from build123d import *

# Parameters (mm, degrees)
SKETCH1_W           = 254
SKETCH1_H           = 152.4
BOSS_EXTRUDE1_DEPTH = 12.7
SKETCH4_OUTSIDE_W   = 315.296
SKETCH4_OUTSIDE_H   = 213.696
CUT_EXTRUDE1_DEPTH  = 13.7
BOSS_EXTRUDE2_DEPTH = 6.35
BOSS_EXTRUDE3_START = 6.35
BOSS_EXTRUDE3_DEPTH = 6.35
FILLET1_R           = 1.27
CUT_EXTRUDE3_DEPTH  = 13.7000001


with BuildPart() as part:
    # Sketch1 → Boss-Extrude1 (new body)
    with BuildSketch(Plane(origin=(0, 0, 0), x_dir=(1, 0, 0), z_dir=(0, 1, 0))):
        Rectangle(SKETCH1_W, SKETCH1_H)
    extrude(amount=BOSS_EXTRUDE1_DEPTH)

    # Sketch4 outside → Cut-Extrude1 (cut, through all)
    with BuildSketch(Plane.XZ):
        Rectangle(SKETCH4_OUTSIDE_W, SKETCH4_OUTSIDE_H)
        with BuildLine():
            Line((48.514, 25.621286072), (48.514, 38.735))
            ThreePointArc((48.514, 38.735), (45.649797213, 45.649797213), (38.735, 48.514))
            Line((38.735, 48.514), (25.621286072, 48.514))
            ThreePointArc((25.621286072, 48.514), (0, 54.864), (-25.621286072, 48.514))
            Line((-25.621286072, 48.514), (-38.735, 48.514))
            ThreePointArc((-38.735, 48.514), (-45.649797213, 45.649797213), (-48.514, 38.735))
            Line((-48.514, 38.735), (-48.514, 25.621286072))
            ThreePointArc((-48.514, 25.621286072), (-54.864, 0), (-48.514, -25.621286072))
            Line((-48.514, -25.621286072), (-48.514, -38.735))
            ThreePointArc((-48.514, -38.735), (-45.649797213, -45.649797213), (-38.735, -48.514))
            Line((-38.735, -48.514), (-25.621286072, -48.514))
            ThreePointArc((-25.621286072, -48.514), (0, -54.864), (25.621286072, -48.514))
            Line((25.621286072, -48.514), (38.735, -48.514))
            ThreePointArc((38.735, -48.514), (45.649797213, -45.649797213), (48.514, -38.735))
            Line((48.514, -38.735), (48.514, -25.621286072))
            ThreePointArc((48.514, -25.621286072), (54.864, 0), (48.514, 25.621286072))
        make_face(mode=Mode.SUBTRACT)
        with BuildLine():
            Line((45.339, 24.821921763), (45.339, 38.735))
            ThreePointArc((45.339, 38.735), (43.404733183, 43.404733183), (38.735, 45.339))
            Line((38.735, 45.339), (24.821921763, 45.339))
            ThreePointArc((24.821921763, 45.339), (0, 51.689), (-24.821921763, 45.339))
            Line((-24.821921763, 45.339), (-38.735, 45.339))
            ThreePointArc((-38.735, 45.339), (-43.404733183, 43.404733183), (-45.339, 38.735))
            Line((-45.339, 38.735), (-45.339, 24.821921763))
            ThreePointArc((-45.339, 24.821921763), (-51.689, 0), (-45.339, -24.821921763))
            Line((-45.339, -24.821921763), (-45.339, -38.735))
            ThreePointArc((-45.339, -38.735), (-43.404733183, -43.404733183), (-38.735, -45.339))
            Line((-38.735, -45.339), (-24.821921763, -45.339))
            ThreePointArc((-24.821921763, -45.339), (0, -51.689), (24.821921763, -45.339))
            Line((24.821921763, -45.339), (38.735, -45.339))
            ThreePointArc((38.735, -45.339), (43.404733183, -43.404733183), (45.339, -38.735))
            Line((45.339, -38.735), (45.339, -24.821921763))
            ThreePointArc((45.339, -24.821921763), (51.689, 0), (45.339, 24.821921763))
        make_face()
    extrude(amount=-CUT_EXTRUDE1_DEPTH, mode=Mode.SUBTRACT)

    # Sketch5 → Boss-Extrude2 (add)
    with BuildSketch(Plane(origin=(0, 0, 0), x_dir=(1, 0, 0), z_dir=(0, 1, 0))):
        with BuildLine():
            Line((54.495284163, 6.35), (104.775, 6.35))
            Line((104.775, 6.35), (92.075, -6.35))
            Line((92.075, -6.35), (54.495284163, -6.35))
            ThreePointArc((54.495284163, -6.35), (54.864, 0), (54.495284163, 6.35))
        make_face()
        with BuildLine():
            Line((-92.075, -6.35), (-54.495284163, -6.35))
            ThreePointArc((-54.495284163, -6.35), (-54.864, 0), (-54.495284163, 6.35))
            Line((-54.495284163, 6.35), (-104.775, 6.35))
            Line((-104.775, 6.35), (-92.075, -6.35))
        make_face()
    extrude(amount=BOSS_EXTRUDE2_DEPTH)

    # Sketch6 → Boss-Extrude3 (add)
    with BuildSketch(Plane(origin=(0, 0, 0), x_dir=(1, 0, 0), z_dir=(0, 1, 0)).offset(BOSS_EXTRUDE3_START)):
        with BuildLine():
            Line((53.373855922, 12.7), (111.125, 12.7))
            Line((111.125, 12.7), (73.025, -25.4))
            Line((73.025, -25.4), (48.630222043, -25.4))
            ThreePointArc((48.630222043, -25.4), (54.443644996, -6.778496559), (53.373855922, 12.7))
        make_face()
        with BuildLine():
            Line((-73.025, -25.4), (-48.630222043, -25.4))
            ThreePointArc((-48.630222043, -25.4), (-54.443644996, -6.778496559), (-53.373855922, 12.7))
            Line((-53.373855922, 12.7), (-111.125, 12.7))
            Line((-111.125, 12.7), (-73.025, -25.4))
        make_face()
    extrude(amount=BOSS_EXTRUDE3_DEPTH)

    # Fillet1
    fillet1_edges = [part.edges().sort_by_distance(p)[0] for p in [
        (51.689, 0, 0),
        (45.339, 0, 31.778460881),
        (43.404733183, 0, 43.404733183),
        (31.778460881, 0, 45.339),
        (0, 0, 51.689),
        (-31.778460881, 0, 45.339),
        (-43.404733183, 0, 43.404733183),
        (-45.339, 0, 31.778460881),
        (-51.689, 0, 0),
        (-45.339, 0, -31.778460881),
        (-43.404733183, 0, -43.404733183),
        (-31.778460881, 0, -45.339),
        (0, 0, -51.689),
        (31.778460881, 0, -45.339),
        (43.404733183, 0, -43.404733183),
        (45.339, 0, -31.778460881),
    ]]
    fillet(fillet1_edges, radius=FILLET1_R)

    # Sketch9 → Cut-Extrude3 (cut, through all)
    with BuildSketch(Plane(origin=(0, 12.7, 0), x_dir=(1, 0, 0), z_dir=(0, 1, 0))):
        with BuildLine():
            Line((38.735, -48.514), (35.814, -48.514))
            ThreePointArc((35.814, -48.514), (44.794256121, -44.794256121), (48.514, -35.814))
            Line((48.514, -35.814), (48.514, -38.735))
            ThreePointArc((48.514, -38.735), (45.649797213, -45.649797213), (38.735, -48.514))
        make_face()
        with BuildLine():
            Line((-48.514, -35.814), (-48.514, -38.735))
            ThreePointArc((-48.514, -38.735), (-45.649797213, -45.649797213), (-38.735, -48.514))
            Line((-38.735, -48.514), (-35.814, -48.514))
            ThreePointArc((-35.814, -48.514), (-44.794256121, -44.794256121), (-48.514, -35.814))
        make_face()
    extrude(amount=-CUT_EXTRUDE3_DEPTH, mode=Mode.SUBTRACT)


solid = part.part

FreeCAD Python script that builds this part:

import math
import FreeCAD as App
import Part
import Sketcher
from FreeCAD import Vector
Q = App.Units.Quantity


def edges_at(feature, points):
    """Names of the edges that pass closest to the given points."""
    edges = feature.Shape.Edges
    near = lambda p: min(range(len(edges)), key=lambda i: edges[i].distToShape(Part.Vertex(*p))[0])
    return sorted({f"Edge{near(p) + 1}" for p in points})

doc = App.newDocument("Part")
params = doc.addObject("Spreadsheet::Sheet", "Params")
for row, (alias, value) in enumerate([
    ("sketch1_width", "10 in"),
    ("sketch1_height", "6 in"),
    ("pad1_length", "0.5 in"),
    ("sketch2_radius", "2.16 in"),
    ("sketch2_radius2", "0.26 in"),
    ("sketch2_radius3", "0.385 in"),
    ("sketch2_radius4", "2.035 in"),
    ("sketch3_radius", "2.16 in"),
    ("pad2_length", "0.25 in"),
    ("sketch4_radius", "2.16 in"),
    ("pad3_length", "0.25 in"),
    ("fillet_radius", "0.05 in"),
    ("sketch5_radius", "0.5 in"),
    ("sketch5_radius2", "0.385 in"),
], start=1):
    params.set(f"A{row}", alias)
    params.set(f"B{row}", "=" + value)
    params.setAlias(f"B{row}", alias)

body = doc.addObject("PartDesign::Body", "Body")

# Sketch on XZ plane
sketch1 = body.newObject("Sketcher::SketchObject", "Sketch")
sketch1.AttachmentSupport = (doc.getObject("XZ_Plane"), [""])
sketch1.MapMode = "FlatFace"
sketch1.addGeometry([
    Part.LineSegment(Vector(-127, -76, 0), Vector(-127, 76, 0)),
    Part.LineSegment(Vector(-127, 76, 0), Vector(127, 76, 0)),
    Part.LineSegment(Vector(127, 76, 0), Vector(127, -76, 0)),
    Part.LineSegment(Vector(127, -76, 0), Vector(-127, -76, 0)),
], False)
sketch1.addConstraint([
    Sketcher.Constraint("Coincident", 0, 2, 1, 1),
    Sketcher.Constraint("Coincident", 1, 2, 2, 1),
    Sketcher.Constraint("Coincident", 2, 2, 3, 1),
    Sketcher.Constraint("Coincident", 3, 2, 0, 1),
    Sketcher.Constraint("Vertical", 0),
    Sketcher.Constraint("Horizontal", 1),
    Sketcher.Constraint("Vertical", 2),
    Sketcher.Constraint("Horizontal", 3),
    Sketcher.Constraint("Symmetric", 0, 2, 2, 2, -1, 1),
    Sketcher.Constraint("DistanceX", 1, 1, 1, 2, Q("10 in")),
    Sketcher.Constraint("DistanceY", 0, 1, 0, 2, Q("6 in")),
])
sketch1.setExpression("Constraints[9]", "Params.sketch1_width")
sketch1.setExpression("Constraints[10]", "Params.sketch1_height")
pad1 = body.newObject("PartDesign::Pad", "Pad")
pad1.Profile = sketch1
pad1.setExpression("Length", "Params.pad1_length")
pad1.Reversed = True

# Sketch on XZ plane
sketch2 = body.newObject("Sketcher::SketchObject", "Sketch001")
sketch2.AttachmentSupport = (doc.getObject("XZ_Plane"), [""])
sketch2.MapMode = "FlatFace"
sketch2.addGeometry([
    Part.LineSegment(Vector(-158, 107, 0), Vector(-158, -107, 0)),  # 0
    Part.LineSegment(Vector(-158, -107, 0), Vector(158, -107, 0)),  # 1
    Part.LineSegment(Vector(158, -107, 0), Vector(158, 107, 0)),  # 2
    Part.LineSegment(Vector(158, 107, 0), Vector(-158, 107, 0)),  # 3
    Part.LineSegment(Vector(49, 39, 0), Vector(49, 26, 0)),  # 4
    Part.ArcOfCircle(Part.Circle(Vector(0, 0, 0), Vector(0, 0, 1), 55), math.radians(-28), math.radians(28)),  # 5
    Part.LineSegment(Vector(49, -26, 0), Vector(49, -39, 0)),  # 6
    Part.ArcOfCircle(Part.Circle(Vector(39, -39, 0), Vector(0, 0, 1), 10), math.radians(-90), math.radians(0)),  # 7
    Part.LineSegment(Vector(39, -49, 0), Vector(26, -49, 0)),  # 8
    Part.ArcOfCircle(Part.Circle(Vector(0, 0, 0), Vector(0, 0, 1), 55), math.radians(-118), math.radians(-62)),  # 9
    Part.LineSegment(Vector(-26, -49, 0), Vector(-39, -49, 0)),  # 10
    Part.ArcOfCircle(Part.Circle(Vector(-39, -39, 0), Vector(0, 0, 1), 10), math.radians(-180), math.radians(-90)),  # 11
    Part.LineSegment(Vector(-49, -39, 0), Vector(-49, -26, 0)),  # 12
    Part.ArcOfCircle(Part.Circle(Vector(0, 0, 0), Vector(0, 0, 1), 55), math.radians(152), math.radians(208)),  # 13
    Part.LineSegment(Vector(-49, 26, 0), Vector(-49, 39, 0)),  # 14
    Part.ArcOfCircle(Part.Circle(Vector(-39, 39, 0), Vector(0, 0, 1), 10), math.radians(90), math.radians(180)),  # 15
    Part.LineSegment(Vector(-39, 49, 0), Vector(-26, 49, 0)),  # 16
    Part.ArcOfCircle(Part.Circle(Vector(0, 0, 0), Vector(0, 0, 1), 55), math.radians(62), math.radians(118)),  # 17
    Part.LineSegment(Vector(26, 49, 0), Vector(39, 49, 0)),  # 18
    Part.ArcOfCircle(Part.Circle(Vector(39, 39, 0), Vector(0, 0, 1), 10), math.radians(0), math.radians(90)),  # 19
    Part.LineSegment(Vector(45, 25, 0), Vector(45, 39, 0)),  # 20
    Part.ArcOfCircle(Part.Circle(Vector(39, 39, 0), Vector(0, 0, 1), 7), math.radians(0), math.radians(90)),  # 21
    Part.LineSegment(Vector(39, 45, 0), Vector(25, 45, 0)),  # 22
    Part.ArcOfCircle(Part.Circle(Vector(0, 0, 0), Vector(0, 0, 1), 52), math.radians(61), math.radians(119)),  # 23
    Part.LineSegment(Vector(-25, 45, 0), Vector(-39, 45, 0)),  # 24
    Part.ArcOfCircle(Part.Circle(Vector(-39, 39, 0), Vector(0, 0, 1), 7), math.radians(90), math.radians(180)),  # 25
    Part.LineSegment(Vector(-45, 39, 0), Vector(-45, 25, 0)),  # 26
    Part.ArcOfCircle(Part.Circle(Vector(0, 0, 0), Vector(0, 0, 1), 52), math.radians(151), math.radians(209)),  # 27
    Part.LineSegment(Vector(-45, -25, 0), Vector(-45, -39, 0)),  # 28
    Part.ArcOfCircle(Part.Circle(Vector(-39, -39, 0), Vector(0, 0, 1), 7), math.radians(180), math.radians(270)),  # 29
    Part.LineSegment(Vector(-39, -45, 0), Vector(-25, -45, 0)),  # 30
    Part.ArcOfCircle(Part.Circle(Vector(0, 0, 0), Vector(0, 0, 1), 52), math.radians(-119), math.radians(-61)),  # 31
    Part.LineSegment(Vector(25, -45, 0), Vector(39, -45, 0)),  # 32
    Part.ArcOfCircle(Part.Circle(Vector(39, -39, 0), Vector(0, 0, 1), 7), math.radians(-90), math.radians(0)),  # 33
    Part.LineSegment(Vector(45, -39, 0), Vector(45, -25, 0)),  # 34
    Part.ArcOfCircle(Part.Circle(Vector(0, 0, 0), Vector(0, 0, 1), 52), math.radians(-29), math.radians(29)),  # 35
], False)
sketch2.addConstraint([
    Sketcher.Constraint("Coincident", 0, 2, 1, 1),
    Sketcher.Constraint("Coincident", 1, 2, 2, 1),
    Sketcher.Constraint("Coincident", 2, 2, 3, 1),
    Sketcher.Constraint("Coincident", 3, 2, 0, 1),
    Sketcher.Constraint("Coincident", 4, 2, 5, 2),
    Sketcher.Constraint("Coincident", 5, 1, 6, 1),
    Sketcher.Constraint("Tangent", 6, 2, 7, 2),
    Sketcher.Constraint("Tangent", 7, 1, 8, 1),
    Sketcher.Constraint("Coincident", 8, 2, 9, 2),
    Sketcher.Constraint("Coincident", 9, 1, 10, 1),
    Sketcher.Constraint("Tangent", 10, 2, 11, 2),
    Sketcher.Constraint("Tangent", 11, 1, 12, 1),
    Sketcher.Constraint("Coincident", 12, 2, 13, 2),
    Sketcher.Constraint("Coincident", 13, 1, 14, 1),
    Sketcher.Constraint("Tangent", 14, 2, 15, 2),
    Sketcher.Constraint("Tangent", 15, 1, 16, 1),
    Sketcher.Constraint("Coincident", 16, 2, 17, 2),
    Sketcher.Constraint("Coincident", 17, 1, 18, 1),
    Sketcher.Constraint("Tangent", 18, 2, 19, 2),
    Sketcher.Constraint("Tangent", 19, 1, 4, 1),
    Sketcher.Constraint("Tangent", 20, 2, 21, 1),
    Sketcher.Constraint("Tangent", 21, 2, 22, 1),
    Sketcher.Constraint("Coincident", 22, 2, 23, 1),
    Sketcher.Constraint("Coincident", 23, 2, 24, 1),
    Sketcher.Constraint("Tangent", 24, 2, 25, 1),
    Sketcher.Constraint("Tangent", 25, 2, 26, 1),
    Sketcher.Constraint("Coincident", 26, 2, 27, 1),
    Sketcher.Constraint("Coincident", 27, 2, 28, 1),
    Sketcher.Constraint("Tangent", 28, 2, 29, 1),
    Sketcher.Constraint("Tangent", 29, 2, 30, 1),
    Sketcher.Constraint("Coincident", 30, 2, 31, 1),
    Sketcher.Constraint("Coincident", 31, 2, 32, 1),
    Sketcher.Constraint("Tangent", 32, 2, 33, 1),
    Sketcher.Constraint("Tangent", 33, 2, 34, 1),
    Sketcher.Constraint("Coincident", 34, 2, 35, 1),
    Sketcher.Constraint("Coincident", 35, 2, 20, 1),
    Sketcher.Constraint("Vertical", 0),
    Sketcher.Constraint("Horizontal", 1),
    Sketcher.Constraint("Vertical", 2),
    Sketcher.Constraint("Horizontal", 3),
    Sketcher.Constraint("Vertical", 4),
    Sketcher.Constraint("Vertical", 6),
    Sketcher.Constraint("Horizontal", 8),
    Sketcher.Constraint("Horizontal", 10),
    Sketcher.Constraint("Vertical", 12),
    Sketcher.Constraint("Vertical", 14),
    Sketcher.Constraint("Horizontal", 16),
    Sketcher.Constraint("Horizontal", 18),
    Sketcher.Constraint("Vertical", 20),
    Sketcher.Constraint("Horizontal", 22),
    Sketcher.Constraint("Horizontal", 24),
    Sketcher.Constraint("Vertical", 26),
    Sketcher.Constraint("Vertical", 28),
    Sketcher.Constraint("Horizontal", 30),
    Sketcher.Constraint("Horizontal", 32),
    Sketcher.Constraint("Vertical", 34),
    Sketcher.Constraint("Coincident", 5, 3, -1, 1),
    Sketcher.Constraint("Coincident", 9, 3, -1, 1),
    Sketcher.Constraint("Coincident", 13, 3, -1, 1),
    Sketcher.Constraint("Coincident", 17, 3, -1, 1),
    Sketcher.Constraint("Coincident", 23, 3, -1, 1),
    Sketcher.Constraint("Coincident", 27, 3, -1, 1),
    Sketcher.Constraint("Coincident", 31, 3, -1, 1),
    Sketcher.Constraint("Coincident", 35, 3, -1, 1),
    Sketcher.Constraint("Coincident", 21, 3, 19, 3),
    Sketcher.Constraint("Coincident", 25, 3, 15, 3),
    Sketcher.Constraint("Coincident", 29, 3, 11, 3),
    Sketcher.Constraint("Coincident", 33, 3, 7, 3),
    Sketcher.Constraint("Equal", 5, 9),
    Sketcher.Constraint("Equal", 7, 11),
    Sketcher.Constraint("Equal", 9, 13),
    Sketcher.Constraint("Equal", 11, 15),
    Sketcher.Constraint("Equal", 13, 17),
    Sketcher.Constraint("Equal", 15, 19),
    Sketcher.Constraint("Equal", 21, 25),
    Sketcher.Constraint("Equal", 23, 27),
    Sketcher.Constraint("Equal", 25, 29),
    Sketcher.Constraint("Equal", 27, 31),
    Sketcher.Constraint("Equal", 29, 33),
    Sketcher.Constraint("Equal", 31, 35),
    Sketcher.Constraint("Symmetric", 7, 3, 15, 3, -1, 1),
    Sketcher.Constraint("Symmetric", 11, 3, 19, 3, -1, 1),
    Sketcher.Constraint("Symmetric", 0, 2, 2, 2, -1, 1),
    Sketcher.Constraint("Symmetric", 7, 3, 11, 3, -2),
    Sketcher.Constraint("Equal", 18, 4),
    Sketcher.Constraint("Radius", 5, Q("2.16 in")),
    Sketcher.Constraint("Radius", 21, Q("0.26 in")),
    Sketcher.Constraint("Radius", 7, Q("0.385 in")),
    Sketcher.Constraint("Radius", 23, Q("2.035 in")),
    Sketcher.Constraint("DistanceX", -1, 1, 4, 2, Q("1.91 in")),
    Sketcher.Constraint("DistanceX", 1, 1, 1, 2, Q("315.296 mm")),
    Sketcher.Constraint("DistanceY", 0, 2, 0, 1, Q("213.696 mm")),
])
sketch2.setExpression("Constraints[85]", "Params.sketch2_radius")
sketch2.setExpression("Constraints[86]", "Params.sketch2_radius2")
sketch2.setExpression("Constraints[87]", "Params.sketch2_radius3")
sketch2.setExpression("Constraints[88]", "Params.sketch2_radius4")
pocket1 = body.newObject("PartDesign::Pocket", "Pocket")
pocket1.Profile = sketch2
pocket1.Type = "ThroughAll"

# Sketch on XZ plane
sketch3 = body.newObject("Sketcher::SketchObject", "Sketch002")
sketch3.AttachmentSupport = (doc.getObject("XZ_Plane"), [""])
sketch3.MapMode = "FlatFace"
sketch3.addGeometry([
    Part.LineSegment(Vector(105, -6, 0), Vector(54, -6, 0)),  # 0
    Part.ArcOfCircle(Part.Circle(Vector(0, 0, 0), Vector(0, 0, 1), 55), math.radians(-6.65), math.radians(6.65)),  # 1
    Part.LineSegment(Vector(54, 6, 0), Vector(92, 6, 0)),  # 2
    Part.LineSegment(Vector(92, 6, 0), Vector(105, -6, 0)),  # 3
    Part.LineSegment(Vector(-92, 6, 0), Vector(-54, 6, 0)),  # 4
    Part.ArcOfCircle(Part.Circle(Vector(0, 0, 0), Vector(0, 0, 1), 55), math.radians(173.35), math.radians(186.65)),  # 5
    Part.LineSegment(Vector(-54, -6, 0), Vector(-105, -6, 0)),  # 6
    Part.LineSegment(Vector(-105, -6, 0), Vector(-92, 6, 0)),  # 7
], False)
sketch3.addConstraint([
    Sketcher.Constraint("Coincident", 0, 2, 1, 1),
    Sketcher.Constraint("Coincident", 1, 2, 2, 1),
    Sketcher.Constraint("Coincident", 2, 2, 3, 1),
    Sketcher.Constraint("Coincident", 3, 2, 0, 1),
    Sketcher.Constraint("Coincident", 4, 2, 5, 1),
    Sketcher.Constraint("Coincident", 5, 2, 6, 1),
    Sketcher.Constraint("Coincident", 6, 2, 7, 1),
    Sketcher.Constraint("Coincident", 7, 2, 4, 1),
    Sketcher.Constraint("Horizontal", 0),
    Sketcher.Constraint("Horizontal", 2),
    Sketcher.Constraint("Horizontal", 4),
    Sketcher.Constraint("Horizontal", 6),
    Sketcher.Constraint("Coincident", 1, 3, -1, 1),
    Sketcher.Constraint("Coincident", 5, 3, -1, 1),
    Sketcher.Constraint("Equal", 1, 5),
    Sketcher.Constraint("Symmetric", 3, 2, 6, 2, -2),
    Sketcher.Constraint("Symmetric", 2, 2, 7, 2, -2),
    Sketcher.Constraint("Perpendicular", 3, 7),
    Sketcher.Constraint("Vertical", 0, 2, 1, 2),
    Sketcher.Constraint("Radius", 1, Q("2.16 in")),
    Sketcher.Constraint("DistanceY", 0, 2, 1, 2, Q("0.5 in")),
    Sketcher.Constraint("DistanceX", -1, 1, 2, 2, Q("3.625 in")),
])
sketch3.setExpression("Constraints[19]", "Params.sketch3_radius")
pad2 = body.newObject("PartDesign::Pad", "Pad001")
pad2.Profile = sketch3
pad2.setExpression("Length", "Params.pad2_length")
pad2.Reversed = True

# Sketch on XZ plane
sketch4 = body.newObject("Sketcher::SketchObject", "Sketch003")
sketch4.AttachmentSupport = (doc.getObject("XZ_Plane"), [""])
sketch4.MapMode = "FlatFace"
sketch4.AttachmentOffset = App.Placement(Vector(0, 0, -0.25 * 25.4), App.Rotation())
sketch4.addGeometry([
    Part.LineSegment(Vector(111, -13, 0), Vector(53, -13, 0)),  # 0
    Part.ArcOfCircle(Part.Circle(Vector(0, 0, 0), Vector(0, 0, 1), 55), math.radians(-13), math.radians(28)),  # 1
    Part.LineSegment(Vector(49, 25, 0), Vector(73, 25, 0)),  # 2
    Part.LineSegment(Vector(73, 25, 0), Vector(111, -13, 0)),  # 3
    Part.LineSegment(Vector(-73, 25, 0), Vector(-49, 25, 0)),  # 4
    Part.ArcOfCircle(Part.Circle(Vector(0, 0, 0), Vector(0, 0, 1), 55), math.radians(152), math.radians(193)),  # 5
    Part.LineSegment(Vector(-53, -13, 0), Vector(-111, -13, 0)),  # 6
    Part.LineSegment(Vector(-111, -13, 0), Vector(-73, 25, 0)),  # 7
], False)
sketch4.addConstraint([
    Sketcher.Constraint("Coincident", 0, 2, 1, 1),
    Sketcher.Constraint("Coincident", 1, 2, 2, 1),
    Sketcher.Constraint("Coincident", 2, 2, 3, 1),
    Sketcher.Constraint("Coincident", 3, 2, 0, 1),
    Sketcher.Constraint("Coincident", 4, 2, 5, 1),
    Sketcher.Constraint("Coincident", 5, 2, 6, 1),
    Sketcher.Constraint("Coincident", 6, 2, 7, 1),
    Sketcher.Constraint("Coincident", 7, 2, 4, 1),
    Sketcher.Constraint("Horizontal", 0),
    Sketcher.Constraint("Horizontal", 2),
    Sketcher.Constraint("Horizontal", 4),
    Sketcher.Constraint("Horizontal", 6),
    Sketcher.Constraint("Coincident", 1, 3, -1, 1),
    Sketcher.Constraint("Coincident", 5, 3, -1, 1),
    Sketcher.Constraint("Equal", 1, 5),
    Sketcher.Constraint("Symmetric", 3, 2, 6, 2, -2),
    Sketcher.Constraint("Symmetric", 2, 2, 7, 2, -2),
    Sketcher.Constraint("Perpendicular", 3, 7),
    Sketcher.Constraint("Radius", 1, Q("2.16 in")),
    Sketcher.Constraint("DistanceY", -1, 1, 1, 2, Q("1 in")),
    Sketcher.Constraint("DistanceY", 0, 2, -1, 1, Q("0.5 in")),
    Sketcher.Constraint("DistanceX", -1, 1, 2, 2, Q("2.875 in")),
])
sketch4.setExpression("Constraints[18]", "Params.sketch4_radius")
pad3 = body.newObject("PartDesign::Pad", "Pad002")
pad3.Profile = sketch4
pad3.setExpression("Length", "Params.pad3_length")
pad3.Reversed = True
doc.recompute()

fillet = body.newObject("PartDesign::Fillet", "Fillet")
fillet.Base = (pad3, edges_at(pad3, [
    (51.689, 0, 0),
    (45.339, 0, 31.778),
    (43.405, 0, 43.405),
    (31.778, 0, 45.339),
    (0, 0, 51.689),
    (-31.778, 0, 45.339),
    (-43.405, 0, 43.405),
    (-45.339, 0, 31.778),
    (-51.689, 0, 0),
    (-45.339, 0, -31.778),
    (-43.405, 0, -43.405),
    (-31.778, 0, -45.339),
    (0, 0, -51.689),
    (31.778, 0, -45.339),
    (43.405, 0, -43.405),
    (45.339, 0, -31.778),
]))
fillet.setExpression("Radius", "Params.fillet_radius")

# Sketch on XZ plane
sketch5 = body.newObject("Sketcher::SketchObject", "Sketch004")
sketch5.AttachmentSupport = (doc.getObject("XZ_Plane"), [""])
sketch5.MapMode = "FlatFace"
sketch5.AttachmentOffset = App.Placement(Vector(0, 0, -0.5 * 25.4), App.Rotation())
sketch5.addGeometry([
    Part.LineSegment(Vector(35.8, 48.5, 0), Vector(38.7, 48.5, 0)),  # 0
    Part.ArcOfCircle(Part.Circle(Vector(38.7, 38.7, 0), Vector(0, 0, 1), 9.8), math.radians(0), math.radians(90)),  # 1
    Part.LineSegment(Vector(48.5, 38.7, 0), Vector(48.5, 35.8, 0)),  # 2
    Part.ArcOfCircle(Part.Circle(Vector(35.8, 35.8, 0), Vector(0, 0, 1), 12.7), math.radians(0), math.radians(90)),  # 3
    Part.LineSegment(Vector(-48.5, 35.8, 0), Vector(-48.5, 38.7, 0)),  # 4
    Part.ArcOfCircle(Part.Circle(Vector(-38.7, 38.7, 0), Vector(0, 0, 1), 9.8), math.radians(90), math.radians(180)),  # 5
    Part.LineSegment(Vector(-38.7, 48.5, 0), Vector(-35.8, 48.5, 0)),  # 6
    Part.ArcOfCircle(Part.Circle(Vector(-35.8, 35.8, 0), Vector(0, 0, 1), 12.7), math.radians(90), math.radians(180)),  # 7
], False)
sketch5.addConstraint([
    Sketcher.Constraint("Tangent", 0, 2, 1, 2),
    Sketcher.Constraint("Tangent", 1, 1, 2, 1),
    Sketcher.Constraint("Tangent", 2, 2, 3, 1),
    Sketcher.Constraint("Tangent", 3, 2, 0, 1),
    Sketcher.Constraint("Tangent", 4, 2, 5, 2),
    Sketcher.Constraint("Tangent", 5, 1, 6, 1),
    Sketcher.Constraint("Tangent", 6, 2, 7, 1),
    Sketcher.Constraint("Tangent", 7, 2, 4, 1),
    Sketcher.Constraint("Horizontal", 0),
    Sketcher.Constraint("Vertical", 2),
    Sketcher.Constraint("Vertical", 4),
    Sketcher.Constraint("Horizontal", 6),
    Sketcher.Constraint("Equal", 1, 5),
    Sketcher.Constraint("Equal", 3, 7),
    Sketcher.Constraint("Symmetric", 1, 3, 5, 3, -2),
    Sketcher.Constraint("Radius", 3, Q("0.5 in")),
    Sketcher.Constraint("Radius", 1, Q("0.385 in")),
    Sketcher.Constraint("DistanceX", -1, 1, 3, 3, Q("1.41 in")),
    Sketcher.Constraint("DistanceY", -1, 1, 3, 3, Q("1.41 in")),
])
sketch5.setExpression("Constraints[15]", "Params.sketch5_radius")
sketch5.setExpression("Constraints[16]", "Params.sketch5_radius2")
pocket2 = body.newObject("PartDesign::Pocket", "Pocket001")
pocket2.Profile = sketch5
pocket2.Type = "ThroughAll"
pocket2.Reversed = True

doc.recompute()
